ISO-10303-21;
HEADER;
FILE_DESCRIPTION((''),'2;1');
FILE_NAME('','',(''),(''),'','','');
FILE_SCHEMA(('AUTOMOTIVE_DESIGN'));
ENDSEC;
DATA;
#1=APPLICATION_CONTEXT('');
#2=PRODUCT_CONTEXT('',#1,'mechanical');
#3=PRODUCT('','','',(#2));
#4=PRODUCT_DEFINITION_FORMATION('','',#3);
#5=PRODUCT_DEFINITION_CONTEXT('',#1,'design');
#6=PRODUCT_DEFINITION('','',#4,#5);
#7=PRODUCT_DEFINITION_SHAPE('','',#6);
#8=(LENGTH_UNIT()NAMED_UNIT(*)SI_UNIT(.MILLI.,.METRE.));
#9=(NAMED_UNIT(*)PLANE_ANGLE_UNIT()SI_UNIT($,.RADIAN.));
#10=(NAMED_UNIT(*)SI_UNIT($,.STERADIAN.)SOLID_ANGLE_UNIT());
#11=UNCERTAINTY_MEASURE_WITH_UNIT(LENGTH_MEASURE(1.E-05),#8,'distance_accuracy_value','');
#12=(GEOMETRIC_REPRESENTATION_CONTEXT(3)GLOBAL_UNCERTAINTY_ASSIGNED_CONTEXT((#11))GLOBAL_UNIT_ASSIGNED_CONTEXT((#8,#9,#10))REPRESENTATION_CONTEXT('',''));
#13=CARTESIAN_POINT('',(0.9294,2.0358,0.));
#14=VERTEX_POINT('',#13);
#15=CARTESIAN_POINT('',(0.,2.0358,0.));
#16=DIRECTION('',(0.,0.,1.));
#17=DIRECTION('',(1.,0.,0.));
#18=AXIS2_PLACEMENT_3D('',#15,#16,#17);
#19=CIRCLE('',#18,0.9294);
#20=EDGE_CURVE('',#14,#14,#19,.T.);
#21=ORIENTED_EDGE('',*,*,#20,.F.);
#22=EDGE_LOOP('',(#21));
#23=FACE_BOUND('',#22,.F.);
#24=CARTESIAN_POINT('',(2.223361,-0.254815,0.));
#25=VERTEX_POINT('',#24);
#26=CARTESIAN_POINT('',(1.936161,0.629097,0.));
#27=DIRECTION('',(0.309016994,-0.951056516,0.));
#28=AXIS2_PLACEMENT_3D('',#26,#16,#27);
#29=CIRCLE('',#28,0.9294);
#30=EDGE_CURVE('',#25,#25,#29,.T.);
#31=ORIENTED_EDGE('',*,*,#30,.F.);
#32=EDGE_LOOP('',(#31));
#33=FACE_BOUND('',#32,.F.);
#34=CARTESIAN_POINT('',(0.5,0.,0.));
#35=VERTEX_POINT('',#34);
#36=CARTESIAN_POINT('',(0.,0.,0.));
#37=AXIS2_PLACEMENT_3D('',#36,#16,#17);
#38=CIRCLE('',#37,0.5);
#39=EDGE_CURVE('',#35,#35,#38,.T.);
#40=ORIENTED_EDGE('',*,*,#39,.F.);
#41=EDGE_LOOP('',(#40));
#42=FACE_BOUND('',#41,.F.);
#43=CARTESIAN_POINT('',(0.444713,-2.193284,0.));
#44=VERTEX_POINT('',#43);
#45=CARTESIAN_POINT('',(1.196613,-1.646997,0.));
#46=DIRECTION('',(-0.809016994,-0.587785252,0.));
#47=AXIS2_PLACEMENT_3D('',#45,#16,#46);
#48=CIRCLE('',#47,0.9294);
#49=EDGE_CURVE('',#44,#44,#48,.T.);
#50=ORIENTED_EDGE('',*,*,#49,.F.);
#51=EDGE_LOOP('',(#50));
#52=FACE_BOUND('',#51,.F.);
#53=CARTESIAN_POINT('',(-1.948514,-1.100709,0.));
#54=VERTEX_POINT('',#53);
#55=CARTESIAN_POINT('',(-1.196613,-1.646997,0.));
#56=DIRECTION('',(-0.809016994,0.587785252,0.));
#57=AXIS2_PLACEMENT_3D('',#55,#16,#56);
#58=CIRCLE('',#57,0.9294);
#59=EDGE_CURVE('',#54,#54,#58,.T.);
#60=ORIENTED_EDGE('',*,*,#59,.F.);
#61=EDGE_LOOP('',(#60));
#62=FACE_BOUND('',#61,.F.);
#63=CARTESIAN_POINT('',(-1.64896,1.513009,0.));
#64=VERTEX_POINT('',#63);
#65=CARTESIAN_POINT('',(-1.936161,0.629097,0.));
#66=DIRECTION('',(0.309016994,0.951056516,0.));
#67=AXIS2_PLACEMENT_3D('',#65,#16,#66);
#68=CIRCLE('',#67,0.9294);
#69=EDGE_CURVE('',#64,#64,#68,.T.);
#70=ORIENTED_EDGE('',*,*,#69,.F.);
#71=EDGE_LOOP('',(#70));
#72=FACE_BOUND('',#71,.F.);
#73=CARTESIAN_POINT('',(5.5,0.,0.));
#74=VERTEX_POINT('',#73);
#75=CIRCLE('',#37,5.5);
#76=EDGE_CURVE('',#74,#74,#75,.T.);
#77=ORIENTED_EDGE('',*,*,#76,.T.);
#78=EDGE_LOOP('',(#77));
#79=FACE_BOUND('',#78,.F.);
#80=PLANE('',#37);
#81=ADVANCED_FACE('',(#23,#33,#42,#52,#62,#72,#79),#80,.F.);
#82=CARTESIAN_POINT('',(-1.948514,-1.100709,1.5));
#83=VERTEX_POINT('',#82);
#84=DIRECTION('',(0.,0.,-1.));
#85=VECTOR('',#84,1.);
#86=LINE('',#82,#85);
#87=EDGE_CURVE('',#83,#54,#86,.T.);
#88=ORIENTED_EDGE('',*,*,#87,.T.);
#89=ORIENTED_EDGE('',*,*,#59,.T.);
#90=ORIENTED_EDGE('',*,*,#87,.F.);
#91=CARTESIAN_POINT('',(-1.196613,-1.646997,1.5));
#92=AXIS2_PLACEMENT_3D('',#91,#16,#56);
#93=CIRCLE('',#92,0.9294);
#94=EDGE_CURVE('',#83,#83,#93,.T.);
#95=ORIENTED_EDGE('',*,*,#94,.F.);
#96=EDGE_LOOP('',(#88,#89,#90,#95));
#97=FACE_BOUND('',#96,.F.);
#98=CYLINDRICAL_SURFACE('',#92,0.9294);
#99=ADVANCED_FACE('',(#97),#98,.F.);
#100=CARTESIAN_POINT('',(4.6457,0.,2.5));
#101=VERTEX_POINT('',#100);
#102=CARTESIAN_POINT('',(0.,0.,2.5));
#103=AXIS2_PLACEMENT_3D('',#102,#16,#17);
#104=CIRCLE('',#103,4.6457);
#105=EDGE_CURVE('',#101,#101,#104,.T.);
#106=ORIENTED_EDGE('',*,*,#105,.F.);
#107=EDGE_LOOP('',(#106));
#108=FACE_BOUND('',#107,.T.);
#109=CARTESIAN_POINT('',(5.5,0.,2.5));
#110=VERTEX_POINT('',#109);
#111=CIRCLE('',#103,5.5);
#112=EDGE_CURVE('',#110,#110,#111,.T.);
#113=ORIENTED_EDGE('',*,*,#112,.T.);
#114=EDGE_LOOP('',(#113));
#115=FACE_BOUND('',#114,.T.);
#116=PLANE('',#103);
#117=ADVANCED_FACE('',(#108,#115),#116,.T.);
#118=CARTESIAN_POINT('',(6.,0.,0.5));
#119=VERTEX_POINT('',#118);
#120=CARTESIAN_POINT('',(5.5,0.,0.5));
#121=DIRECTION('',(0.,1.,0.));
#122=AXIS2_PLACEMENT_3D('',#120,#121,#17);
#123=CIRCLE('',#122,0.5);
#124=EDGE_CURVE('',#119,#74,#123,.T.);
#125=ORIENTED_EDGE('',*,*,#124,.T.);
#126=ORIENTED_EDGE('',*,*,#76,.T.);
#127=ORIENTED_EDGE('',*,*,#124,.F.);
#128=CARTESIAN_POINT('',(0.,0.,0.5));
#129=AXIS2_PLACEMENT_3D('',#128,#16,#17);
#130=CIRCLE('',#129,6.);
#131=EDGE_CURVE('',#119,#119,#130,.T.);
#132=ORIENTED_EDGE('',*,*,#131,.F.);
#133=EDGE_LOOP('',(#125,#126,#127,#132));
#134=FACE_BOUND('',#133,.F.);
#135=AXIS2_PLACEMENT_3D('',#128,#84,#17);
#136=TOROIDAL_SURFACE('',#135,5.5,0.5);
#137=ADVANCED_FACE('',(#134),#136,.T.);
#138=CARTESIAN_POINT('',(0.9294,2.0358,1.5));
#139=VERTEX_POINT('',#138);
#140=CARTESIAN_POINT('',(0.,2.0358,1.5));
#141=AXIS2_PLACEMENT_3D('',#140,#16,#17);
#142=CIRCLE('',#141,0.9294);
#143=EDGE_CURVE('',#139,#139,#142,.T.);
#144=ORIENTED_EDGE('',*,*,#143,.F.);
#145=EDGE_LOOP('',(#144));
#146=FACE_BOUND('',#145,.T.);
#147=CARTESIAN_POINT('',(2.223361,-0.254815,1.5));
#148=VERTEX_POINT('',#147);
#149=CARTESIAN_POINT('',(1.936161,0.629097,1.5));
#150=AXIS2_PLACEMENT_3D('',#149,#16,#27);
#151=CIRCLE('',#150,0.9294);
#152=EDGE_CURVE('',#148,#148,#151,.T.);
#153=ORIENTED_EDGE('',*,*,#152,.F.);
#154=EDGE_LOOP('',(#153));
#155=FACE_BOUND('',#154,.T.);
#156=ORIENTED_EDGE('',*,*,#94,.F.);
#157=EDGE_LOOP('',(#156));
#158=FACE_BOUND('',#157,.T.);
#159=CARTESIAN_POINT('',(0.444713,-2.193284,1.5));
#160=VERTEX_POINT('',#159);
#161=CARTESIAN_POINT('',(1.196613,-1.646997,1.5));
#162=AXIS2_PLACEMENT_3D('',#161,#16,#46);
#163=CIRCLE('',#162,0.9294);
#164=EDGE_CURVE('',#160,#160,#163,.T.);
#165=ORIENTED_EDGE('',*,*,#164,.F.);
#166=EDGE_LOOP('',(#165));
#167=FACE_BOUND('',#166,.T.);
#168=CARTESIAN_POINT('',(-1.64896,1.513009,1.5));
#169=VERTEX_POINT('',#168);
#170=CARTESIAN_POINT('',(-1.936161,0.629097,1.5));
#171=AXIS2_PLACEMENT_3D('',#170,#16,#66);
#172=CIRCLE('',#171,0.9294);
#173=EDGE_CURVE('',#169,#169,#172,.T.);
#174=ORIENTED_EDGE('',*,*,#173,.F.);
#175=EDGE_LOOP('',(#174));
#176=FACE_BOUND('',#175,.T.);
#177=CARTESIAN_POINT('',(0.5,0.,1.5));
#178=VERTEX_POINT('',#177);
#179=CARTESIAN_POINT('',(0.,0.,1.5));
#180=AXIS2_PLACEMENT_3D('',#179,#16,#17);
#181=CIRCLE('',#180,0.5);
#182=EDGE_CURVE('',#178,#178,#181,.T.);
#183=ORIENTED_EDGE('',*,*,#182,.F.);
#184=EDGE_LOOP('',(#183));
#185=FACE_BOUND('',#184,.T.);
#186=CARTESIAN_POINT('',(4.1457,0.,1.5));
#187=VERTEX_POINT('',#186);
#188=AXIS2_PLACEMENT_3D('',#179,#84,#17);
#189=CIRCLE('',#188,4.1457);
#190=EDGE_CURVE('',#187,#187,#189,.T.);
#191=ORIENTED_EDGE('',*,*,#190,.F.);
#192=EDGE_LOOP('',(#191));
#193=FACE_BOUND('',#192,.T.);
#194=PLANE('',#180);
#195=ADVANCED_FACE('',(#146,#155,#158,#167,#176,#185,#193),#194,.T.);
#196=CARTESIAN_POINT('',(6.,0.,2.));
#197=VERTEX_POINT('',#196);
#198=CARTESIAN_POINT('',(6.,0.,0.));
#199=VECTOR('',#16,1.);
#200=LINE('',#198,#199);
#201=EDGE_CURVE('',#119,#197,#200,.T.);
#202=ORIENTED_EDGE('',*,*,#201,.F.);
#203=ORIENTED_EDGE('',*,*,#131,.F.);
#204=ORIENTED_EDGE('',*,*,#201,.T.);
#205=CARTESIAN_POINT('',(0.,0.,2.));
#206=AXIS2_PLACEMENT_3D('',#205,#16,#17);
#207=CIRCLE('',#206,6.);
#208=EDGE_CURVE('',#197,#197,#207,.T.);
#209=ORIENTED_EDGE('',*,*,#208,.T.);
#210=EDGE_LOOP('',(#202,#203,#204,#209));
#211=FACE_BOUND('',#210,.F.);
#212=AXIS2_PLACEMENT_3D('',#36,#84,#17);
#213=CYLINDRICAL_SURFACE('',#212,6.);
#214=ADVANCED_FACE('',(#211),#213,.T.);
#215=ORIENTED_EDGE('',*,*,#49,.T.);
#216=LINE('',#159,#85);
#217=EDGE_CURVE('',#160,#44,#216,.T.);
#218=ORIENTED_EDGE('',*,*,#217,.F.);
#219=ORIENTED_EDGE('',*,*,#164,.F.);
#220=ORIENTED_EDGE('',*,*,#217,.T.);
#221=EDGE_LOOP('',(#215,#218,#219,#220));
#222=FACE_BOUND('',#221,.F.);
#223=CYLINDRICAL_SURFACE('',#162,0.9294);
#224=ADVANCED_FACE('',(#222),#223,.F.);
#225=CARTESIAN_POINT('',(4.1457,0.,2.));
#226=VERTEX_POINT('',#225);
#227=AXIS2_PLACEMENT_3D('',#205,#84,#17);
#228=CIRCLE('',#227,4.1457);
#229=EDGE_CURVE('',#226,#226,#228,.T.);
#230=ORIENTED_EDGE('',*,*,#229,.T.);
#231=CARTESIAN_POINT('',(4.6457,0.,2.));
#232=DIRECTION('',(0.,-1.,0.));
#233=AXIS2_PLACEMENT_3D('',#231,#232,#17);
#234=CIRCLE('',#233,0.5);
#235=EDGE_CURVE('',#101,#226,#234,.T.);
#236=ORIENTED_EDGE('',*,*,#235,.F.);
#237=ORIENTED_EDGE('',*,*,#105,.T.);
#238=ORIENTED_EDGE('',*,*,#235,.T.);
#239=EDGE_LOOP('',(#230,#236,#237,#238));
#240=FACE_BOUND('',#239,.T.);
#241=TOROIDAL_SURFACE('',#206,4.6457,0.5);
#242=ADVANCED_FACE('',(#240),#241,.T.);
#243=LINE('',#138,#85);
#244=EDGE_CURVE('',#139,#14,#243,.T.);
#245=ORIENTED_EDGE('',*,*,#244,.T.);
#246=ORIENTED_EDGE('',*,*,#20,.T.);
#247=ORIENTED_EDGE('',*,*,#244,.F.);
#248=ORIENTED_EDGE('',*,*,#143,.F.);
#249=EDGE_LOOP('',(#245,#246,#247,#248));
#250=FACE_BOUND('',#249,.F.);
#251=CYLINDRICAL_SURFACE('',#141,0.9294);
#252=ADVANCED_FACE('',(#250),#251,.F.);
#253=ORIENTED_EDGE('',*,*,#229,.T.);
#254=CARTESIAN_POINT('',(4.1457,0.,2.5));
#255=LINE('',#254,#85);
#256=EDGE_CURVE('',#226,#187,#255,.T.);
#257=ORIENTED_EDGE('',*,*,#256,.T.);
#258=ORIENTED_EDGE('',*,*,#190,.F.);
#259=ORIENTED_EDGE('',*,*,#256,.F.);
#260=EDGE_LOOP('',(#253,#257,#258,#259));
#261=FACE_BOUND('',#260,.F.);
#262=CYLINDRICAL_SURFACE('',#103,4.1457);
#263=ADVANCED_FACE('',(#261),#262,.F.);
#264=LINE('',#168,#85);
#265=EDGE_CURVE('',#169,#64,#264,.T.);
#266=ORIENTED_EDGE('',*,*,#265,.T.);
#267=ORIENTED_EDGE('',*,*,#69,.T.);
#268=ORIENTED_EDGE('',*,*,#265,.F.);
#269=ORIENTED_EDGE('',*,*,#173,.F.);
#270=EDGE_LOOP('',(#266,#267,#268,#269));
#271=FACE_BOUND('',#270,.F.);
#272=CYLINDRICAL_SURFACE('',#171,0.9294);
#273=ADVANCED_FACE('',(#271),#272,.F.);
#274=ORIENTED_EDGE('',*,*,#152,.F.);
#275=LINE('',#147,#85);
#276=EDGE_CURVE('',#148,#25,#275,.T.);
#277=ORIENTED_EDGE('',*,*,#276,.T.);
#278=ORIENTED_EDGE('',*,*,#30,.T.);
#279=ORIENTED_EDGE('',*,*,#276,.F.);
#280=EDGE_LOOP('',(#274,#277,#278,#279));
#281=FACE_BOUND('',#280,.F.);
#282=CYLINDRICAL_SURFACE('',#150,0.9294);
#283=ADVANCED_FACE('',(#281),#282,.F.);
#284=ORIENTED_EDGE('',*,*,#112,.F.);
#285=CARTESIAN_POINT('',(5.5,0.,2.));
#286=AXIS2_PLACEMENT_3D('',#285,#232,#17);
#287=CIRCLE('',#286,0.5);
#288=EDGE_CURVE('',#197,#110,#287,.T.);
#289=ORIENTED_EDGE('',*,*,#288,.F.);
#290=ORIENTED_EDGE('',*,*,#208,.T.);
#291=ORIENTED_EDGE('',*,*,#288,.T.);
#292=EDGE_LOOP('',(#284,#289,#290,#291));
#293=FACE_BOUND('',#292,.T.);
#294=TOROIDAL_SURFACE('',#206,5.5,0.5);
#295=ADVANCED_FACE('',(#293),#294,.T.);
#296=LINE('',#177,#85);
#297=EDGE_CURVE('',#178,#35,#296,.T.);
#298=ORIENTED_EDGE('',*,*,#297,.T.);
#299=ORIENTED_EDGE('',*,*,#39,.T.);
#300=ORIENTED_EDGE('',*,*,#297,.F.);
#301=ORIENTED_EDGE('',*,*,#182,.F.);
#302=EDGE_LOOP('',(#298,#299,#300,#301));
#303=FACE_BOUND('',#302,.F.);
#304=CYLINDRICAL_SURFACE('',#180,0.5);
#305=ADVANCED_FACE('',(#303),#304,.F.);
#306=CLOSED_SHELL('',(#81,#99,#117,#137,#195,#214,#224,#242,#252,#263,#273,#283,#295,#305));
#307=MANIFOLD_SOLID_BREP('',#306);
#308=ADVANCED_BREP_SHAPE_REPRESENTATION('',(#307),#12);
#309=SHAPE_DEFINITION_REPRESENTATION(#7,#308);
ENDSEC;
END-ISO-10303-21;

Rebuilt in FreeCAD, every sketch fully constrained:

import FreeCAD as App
import Part
import Sketcher
from FreeCAD import Vector
Q = App.Units.Quantity


def edges_at(feature, points):
    """Names of the edges that pass closest to the given points."""
    edges = feature.Shape.Edges
    near = lambda p: min(range(len(edges)), key=lambda i: edges[i].distToShape(Part.Vertex(*p))[0])
    return sorted({f"Edge{near(p) + 1}" for p in points})

doc = App.newDocument("Part")
body = doc.addObject("PartDesign::Body", "Body")

sketch1 = body.newObject("Sketcher::SketchObject", "Sketch")
sketch1.AttachmentSupport = (doc.getObject("XY_Plane"), [""])
sketch1.MapMode = "FlatFace"
sketch1.addGeometry(Part.Circle(Vector(0, 0, 0), Vector(0, 0, 1), 6), False)
sketch1.addConstraint([
    Sketcher.Constraint("Coincident", 0, 3, -1, 1),
    Sketcher.Constraint("Diameter", 0, Q("12 mm")),
])
pad1 = body.newObject("PartDesign::Pad", "Pad")
pad1.Profile = sketch1
pad1.Length = 2.5
doc.recompute()

fillet = body.newObject("PartDesign::Fillet", "Fillet")
fillet.Base = (pad1, edges_at(pad1, [(-6, 0, 2.5), (-6, 0, 0)]))
fillet.Radius = 0.5

sketch2 = body.newObject("Sketcher::SketchObject", "Sketch001")
sketch2.AttachmentSupport = (doc.getObject("XY_Plane"), [""])
sketch2.MapMode = "FlatFace"
sketch2.AttachmentOffset = App.Placement(Vector(0, 0, 2.5), App.Rotation())
sketch2.addGeometry(Part.Circle(Vector(0, 0, 0), Vector(0, 0, 1), 4.1), False)
sketch2.addConstraint([
    Sketcher.Constraint("Coincident", 0, 3, -1, 1),
    Sketcher.Constraint("Diameter", 0, Q("8.2914 mm")),
])
pocket1 = body.newObject("PartDesign::Pocket", "Pocket")
pocket1.Profile = sketch2
pocket1.Length = 1
doc.recompute()

fillet2 = body.newObject("PartDesign::Fillet", "Fillet001")
fillet2.Base = (pocket1, edges_at(pocket1, [(-4.146, 0, 2.5)]))
fillet2.Radius = 0.5

sketch3 = body.newObject("Sketcher::SketchObject", "Sketch002")
sketch3.AttachmentSupport = (doc.getObject("XY_Plane"), [""])
sketch3.MapMode = "FlatFace"
sketch3.AttachmentOffset = App.Placement(Vector(0, 0, 1.5), App.Rotation())
sketch3.addGeometry(Part.Circle(Vector(0, 0, 0), Vector(0, 0, 1), 0.5), False)
sketch3.addConstraint([
    Sketcher.Constraint("Coincident", 0, 3, -1, 1),
    Sketcher.Constraint("Diameter", 0, Q("1 mm")),
])
pocket2 = body.newObject("PartDesign::Pocket", "Pocket001")
pocket2.Profile = sketch3
pocket2.Type = "ThroughAll"

sketch4 = body.newObject("Sketcher::SketchObject", "Sketch003")
sketch4.AttachmentSupport = (doc.getObject("XY_Plane"), [""])
sketch4.MapMode = "FlatFace"
sketch4.AttachmentOffset = App.Placement(Vector(0, 0, 1.5), App.Rotation())
sketch4.addGeometry(Part.Circle(Vector(0, 2, 0), Vector(0, 0, 1), 0.9), False)
sketch4.addConstraint([
    Sketcher.Constraint("PointOnObject", 0, 3, -2),
    Sketcher.Constraint("Diameter", 0, Q("1.8588 mm")),
    Sketcher.Constraint("DistanceY", -1, 1, 0, 3, Q("2.0358 mm")),
])
pocket3 = body.newObject("PartDesign::Pocket", "Pocket002")
pocket3.Profile = sketch4
pocket3.Length = 1.5
doc.recompute()

polarpattern = body.newObject("PartDesign::PolarPattern", "PolarPattern")
polarpattern.Originals = [pocket1, pocket3]
polarpattern.Axis = (doc.getObject("Z_Axis"), [""])
polarpattern.Angle = 360
polarpattern.Occurrences = 5
body.Tip = polarpattern

doc.recompute()
